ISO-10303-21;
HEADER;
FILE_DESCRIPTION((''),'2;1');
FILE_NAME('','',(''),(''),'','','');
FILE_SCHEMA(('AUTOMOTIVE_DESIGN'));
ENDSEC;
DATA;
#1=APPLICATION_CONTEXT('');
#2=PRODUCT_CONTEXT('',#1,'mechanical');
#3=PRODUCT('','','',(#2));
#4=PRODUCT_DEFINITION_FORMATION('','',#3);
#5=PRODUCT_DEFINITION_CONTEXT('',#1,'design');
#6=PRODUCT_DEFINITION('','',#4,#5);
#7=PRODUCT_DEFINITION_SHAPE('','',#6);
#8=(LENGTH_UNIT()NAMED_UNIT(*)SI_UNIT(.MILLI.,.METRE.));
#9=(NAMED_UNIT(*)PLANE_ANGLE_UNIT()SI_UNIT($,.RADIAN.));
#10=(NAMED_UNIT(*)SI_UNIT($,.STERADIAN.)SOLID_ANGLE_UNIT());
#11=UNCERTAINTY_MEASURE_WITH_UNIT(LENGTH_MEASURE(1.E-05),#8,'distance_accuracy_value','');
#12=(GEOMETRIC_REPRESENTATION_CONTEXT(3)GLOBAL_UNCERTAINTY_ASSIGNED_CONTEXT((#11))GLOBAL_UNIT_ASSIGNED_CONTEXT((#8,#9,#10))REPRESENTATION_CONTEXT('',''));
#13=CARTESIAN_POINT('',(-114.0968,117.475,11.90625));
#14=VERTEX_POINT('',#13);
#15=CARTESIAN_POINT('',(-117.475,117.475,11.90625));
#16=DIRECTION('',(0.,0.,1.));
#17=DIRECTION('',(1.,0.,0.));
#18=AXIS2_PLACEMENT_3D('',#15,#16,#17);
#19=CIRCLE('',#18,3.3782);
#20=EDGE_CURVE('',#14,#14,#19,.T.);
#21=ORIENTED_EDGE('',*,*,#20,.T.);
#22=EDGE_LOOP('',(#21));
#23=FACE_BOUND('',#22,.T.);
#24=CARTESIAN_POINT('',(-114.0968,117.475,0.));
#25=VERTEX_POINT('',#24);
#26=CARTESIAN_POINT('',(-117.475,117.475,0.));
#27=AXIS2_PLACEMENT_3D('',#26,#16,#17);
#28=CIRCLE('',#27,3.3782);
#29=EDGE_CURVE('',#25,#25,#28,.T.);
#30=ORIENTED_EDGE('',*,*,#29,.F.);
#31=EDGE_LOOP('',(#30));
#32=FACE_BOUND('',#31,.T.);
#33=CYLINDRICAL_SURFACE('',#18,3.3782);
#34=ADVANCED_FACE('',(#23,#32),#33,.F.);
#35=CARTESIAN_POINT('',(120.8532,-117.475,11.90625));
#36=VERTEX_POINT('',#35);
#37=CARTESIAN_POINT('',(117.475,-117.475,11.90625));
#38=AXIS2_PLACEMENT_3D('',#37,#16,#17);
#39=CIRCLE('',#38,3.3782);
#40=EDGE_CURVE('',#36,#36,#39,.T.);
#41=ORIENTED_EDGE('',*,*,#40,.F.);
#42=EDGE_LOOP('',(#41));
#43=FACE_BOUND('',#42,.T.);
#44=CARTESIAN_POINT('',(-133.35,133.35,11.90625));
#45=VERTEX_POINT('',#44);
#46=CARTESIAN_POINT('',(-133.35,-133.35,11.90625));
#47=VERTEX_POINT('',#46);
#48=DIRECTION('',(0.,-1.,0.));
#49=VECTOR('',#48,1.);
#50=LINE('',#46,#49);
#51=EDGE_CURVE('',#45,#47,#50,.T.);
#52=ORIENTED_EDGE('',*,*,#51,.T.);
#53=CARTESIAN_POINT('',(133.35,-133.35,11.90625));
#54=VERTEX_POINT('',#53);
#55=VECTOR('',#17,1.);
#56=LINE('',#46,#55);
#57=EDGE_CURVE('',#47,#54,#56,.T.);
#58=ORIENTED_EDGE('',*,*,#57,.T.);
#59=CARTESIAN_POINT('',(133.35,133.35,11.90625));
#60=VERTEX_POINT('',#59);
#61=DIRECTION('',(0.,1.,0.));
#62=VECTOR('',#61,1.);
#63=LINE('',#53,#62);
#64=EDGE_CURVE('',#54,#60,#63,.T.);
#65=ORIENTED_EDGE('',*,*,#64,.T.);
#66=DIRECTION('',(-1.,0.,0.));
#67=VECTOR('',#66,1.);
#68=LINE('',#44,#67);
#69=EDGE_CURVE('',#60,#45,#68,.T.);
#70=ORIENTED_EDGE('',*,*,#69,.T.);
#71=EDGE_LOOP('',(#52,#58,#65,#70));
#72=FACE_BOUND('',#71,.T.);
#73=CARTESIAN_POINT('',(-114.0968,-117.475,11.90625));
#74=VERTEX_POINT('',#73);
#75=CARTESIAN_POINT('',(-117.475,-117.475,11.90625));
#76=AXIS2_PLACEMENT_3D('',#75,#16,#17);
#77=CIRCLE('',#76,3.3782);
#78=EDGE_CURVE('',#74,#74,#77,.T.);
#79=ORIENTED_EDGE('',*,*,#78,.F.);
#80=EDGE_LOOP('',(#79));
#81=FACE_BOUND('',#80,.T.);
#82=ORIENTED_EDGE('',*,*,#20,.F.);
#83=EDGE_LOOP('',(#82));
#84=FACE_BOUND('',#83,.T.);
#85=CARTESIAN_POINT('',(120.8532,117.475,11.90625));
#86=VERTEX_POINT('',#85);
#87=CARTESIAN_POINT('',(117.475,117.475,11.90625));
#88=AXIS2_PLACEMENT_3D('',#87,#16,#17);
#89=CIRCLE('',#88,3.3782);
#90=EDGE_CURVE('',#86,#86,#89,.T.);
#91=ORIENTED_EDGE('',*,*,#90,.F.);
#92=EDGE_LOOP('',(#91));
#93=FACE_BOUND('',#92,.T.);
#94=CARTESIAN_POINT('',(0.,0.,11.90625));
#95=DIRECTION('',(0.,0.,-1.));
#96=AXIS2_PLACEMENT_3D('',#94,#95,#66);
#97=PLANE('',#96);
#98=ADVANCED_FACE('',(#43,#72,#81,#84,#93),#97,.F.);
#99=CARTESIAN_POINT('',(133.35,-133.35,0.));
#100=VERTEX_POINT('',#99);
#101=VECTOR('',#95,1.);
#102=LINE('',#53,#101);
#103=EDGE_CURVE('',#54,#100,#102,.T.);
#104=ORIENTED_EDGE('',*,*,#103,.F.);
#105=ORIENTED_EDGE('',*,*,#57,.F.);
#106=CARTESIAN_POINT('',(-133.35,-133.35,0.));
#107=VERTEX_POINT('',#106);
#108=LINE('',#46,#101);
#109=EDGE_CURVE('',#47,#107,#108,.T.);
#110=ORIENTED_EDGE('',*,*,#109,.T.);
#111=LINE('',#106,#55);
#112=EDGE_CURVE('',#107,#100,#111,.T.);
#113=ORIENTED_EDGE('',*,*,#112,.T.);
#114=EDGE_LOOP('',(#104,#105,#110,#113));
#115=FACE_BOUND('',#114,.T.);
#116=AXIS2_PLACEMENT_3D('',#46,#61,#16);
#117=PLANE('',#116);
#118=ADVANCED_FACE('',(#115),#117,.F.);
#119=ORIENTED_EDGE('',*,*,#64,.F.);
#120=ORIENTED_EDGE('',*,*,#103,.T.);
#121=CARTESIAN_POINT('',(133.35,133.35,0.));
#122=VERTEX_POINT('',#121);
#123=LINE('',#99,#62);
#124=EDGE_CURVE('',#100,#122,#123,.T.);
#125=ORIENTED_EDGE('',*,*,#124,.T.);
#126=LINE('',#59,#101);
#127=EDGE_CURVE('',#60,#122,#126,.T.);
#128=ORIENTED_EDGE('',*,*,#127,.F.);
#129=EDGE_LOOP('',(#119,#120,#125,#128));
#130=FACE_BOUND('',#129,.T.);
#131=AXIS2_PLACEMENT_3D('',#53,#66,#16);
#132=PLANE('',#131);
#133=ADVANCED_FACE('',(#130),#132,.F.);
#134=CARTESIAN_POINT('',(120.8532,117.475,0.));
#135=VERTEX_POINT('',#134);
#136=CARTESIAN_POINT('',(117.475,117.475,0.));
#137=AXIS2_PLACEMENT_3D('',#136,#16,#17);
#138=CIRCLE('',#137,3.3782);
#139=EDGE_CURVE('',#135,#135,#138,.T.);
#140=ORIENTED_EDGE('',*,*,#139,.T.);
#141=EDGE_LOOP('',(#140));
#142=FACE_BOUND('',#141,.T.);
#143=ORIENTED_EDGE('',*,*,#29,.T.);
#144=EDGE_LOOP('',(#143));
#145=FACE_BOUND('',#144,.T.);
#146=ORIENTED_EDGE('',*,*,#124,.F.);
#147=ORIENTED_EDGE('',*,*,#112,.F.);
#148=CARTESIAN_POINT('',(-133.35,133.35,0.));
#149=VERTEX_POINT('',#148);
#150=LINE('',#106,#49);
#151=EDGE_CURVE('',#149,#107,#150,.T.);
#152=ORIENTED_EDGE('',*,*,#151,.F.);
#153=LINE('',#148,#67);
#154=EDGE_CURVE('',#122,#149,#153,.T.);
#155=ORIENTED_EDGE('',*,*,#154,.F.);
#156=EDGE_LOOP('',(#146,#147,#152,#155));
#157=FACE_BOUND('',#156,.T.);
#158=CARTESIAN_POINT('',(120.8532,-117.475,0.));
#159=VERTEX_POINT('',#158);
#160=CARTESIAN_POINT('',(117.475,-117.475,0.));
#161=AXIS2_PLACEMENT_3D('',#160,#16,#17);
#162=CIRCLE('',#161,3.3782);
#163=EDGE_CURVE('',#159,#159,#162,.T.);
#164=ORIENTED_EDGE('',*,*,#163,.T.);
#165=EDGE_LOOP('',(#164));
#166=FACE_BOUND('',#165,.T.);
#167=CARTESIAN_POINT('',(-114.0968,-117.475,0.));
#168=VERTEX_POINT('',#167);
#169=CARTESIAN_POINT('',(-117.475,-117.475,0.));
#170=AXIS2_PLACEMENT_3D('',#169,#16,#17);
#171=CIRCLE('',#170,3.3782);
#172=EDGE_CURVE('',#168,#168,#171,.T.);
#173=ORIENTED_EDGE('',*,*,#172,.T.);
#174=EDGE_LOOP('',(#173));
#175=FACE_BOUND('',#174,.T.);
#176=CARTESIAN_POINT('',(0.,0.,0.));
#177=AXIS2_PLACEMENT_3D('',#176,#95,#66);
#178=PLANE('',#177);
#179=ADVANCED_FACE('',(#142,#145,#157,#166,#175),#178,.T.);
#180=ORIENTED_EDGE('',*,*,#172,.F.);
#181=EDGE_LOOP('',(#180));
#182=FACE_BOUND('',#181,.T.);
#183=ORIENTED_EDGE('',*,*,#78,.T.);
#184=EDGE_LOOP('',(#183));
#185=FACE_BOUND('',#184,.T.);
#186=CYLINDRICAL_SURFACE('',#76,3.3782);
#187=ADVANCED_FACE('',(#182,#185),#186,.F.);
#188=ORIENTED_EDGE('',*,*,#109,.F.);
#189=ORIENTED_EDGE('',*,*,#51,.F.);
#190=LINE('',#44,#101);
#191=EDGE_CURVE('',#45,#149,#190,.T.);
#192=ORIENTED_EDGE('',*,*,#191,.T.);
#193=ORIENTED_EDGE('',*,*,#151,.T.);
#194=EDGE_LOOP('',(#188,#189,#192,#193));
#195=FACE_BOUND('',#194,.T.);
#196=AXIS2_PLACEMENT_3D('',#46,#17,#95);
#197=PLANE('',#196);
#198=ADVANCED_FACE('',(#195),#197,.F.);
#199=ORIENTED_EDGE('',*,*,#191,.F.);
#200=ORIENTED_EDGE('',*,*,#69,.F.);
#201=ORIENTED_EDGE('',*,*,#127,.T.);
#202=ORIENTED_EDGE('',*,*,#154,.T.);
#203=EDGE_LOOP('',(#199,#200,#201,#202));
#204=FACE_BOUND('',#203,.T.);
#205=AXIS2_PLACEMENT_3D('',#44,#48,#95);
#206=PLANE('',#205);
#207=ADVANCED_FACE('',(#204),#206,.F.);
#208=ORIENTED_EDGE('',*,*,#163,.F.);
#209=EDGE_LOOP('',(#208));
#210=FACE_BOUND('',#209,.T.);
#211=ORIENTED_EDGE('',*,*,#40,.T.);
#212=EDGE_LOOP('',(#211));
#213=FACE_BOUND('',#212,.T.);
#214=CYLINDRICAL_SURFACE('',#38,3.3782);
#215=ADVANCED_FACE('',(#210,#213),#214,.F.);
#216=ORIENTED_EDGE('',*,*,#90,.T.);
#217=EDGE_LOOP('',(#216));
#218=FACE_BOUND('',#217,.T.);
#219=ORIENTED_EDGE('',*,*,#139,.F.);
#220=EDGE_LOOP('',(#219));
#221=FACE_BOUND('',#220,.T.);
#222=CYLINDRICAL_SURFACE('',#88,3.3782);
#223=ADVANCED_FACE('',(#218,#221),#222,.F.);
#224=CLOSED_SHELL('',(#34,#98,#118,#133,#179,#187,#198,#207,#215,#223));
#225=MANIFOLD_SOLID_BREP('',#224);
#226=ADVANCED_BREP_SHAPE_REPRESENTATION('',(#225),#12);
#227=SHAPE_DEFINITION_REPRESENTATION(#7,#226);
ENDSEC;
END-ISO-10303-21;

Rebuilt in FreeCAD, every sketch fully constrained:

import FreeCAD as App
import Part
import Sketcher
from FreeCAD import Vector
Q = App.Units.Quantity


def add_polygon(sketch, points):
    """Adds a closed chain of lines whose ends are joined by coincident constraints."""
    first, n = sketch.GeometryCount, len(points)
    for a, b in zip(points, points[1:] + points[:1]):
        sketch.addGeometry(Part.LineSegment(App.Vector(*a, 0), App.Vector(*b, 0)), False)
    for i in range(n):
        sketch.addConstraint(Sketcher.Constraint("Coincident", first + i, 2, first + (i + 1) % n, 1))

doc = App.newDocument("Part")
body = doc.addObject("PartDesign::Body", "Body")

# Sketch on XY plane
sketch1 = body.newObject("Sketcher::SketchObject", "Sketch")
sketch1.AttachmentSupport = (doc.getObject("XY_Plane"), [""])
sketch1.MapMode = "FlatFace"
add_polygon(sketch1, [(-133, 133), (-133, -133), (133, -133), (133, 133)])  # lines 0-3
sketch1.addConstraint([
    Sketcher.Constraint("Vertical", 0),
    Sketcher.Constraint("Horizontal", 1),
    Sketcher.Constraint("Vertical", 2),
    Sketcher.Constraint("Horizontal", 3),
    Sketcher.Constraint("Symmetric", 0, 2, 2, 2, -1, 1),
    Sketcher.Constraint("Equal", 3, 0),
    Sketcher.Constraint("DistanceX", 1, 1, 1, 2, Q("10.5 in")),
])
pad1 = body.newObject("PartDesign::Pad", "Pad")
pad1.Profile = sketch1
pad1.Length = Q("0.46875 in")

# Sketch on XY plane
sketch2 = body.newObject("Sketcher::SketchObject", "Sketch001")
sketch2.AttachmentSupport = (doc.getObject("XY_Plane"), [""])
sketch2.MapMode = "FlatFace"
sketch2.AttachmentOffset = App.Placement(Vector(0, 0, 0.46875 * 25.4), App.Rotation())
sketch2.addGeometry([
    Part.Circle(Vector(-117.5, 117.5, 0), Vector(0, 0, 1), 3.4),
    Part.Circle(Vector(117.5, 117.5, 0), Vector(0, 0, 1), 3.4),
    Part.Circle(Vector(117.5, -117.5, 0), Vector(0, 0, 1), 3.4),
    Part.Circle(Vector(-117.5, -117.5, 0), Vector(0, 0, 1), 3.4),
], False)
sketch2.addConstraint([
    Sketcher.Constraint("Equal", 0, 1),
    Sketcher.Constraint("Equal", 1, 2),
    Sketcher.Constraint("Equal", 2, 3),
    Sketcher.Constraint("Symmetric", 0, 3, 2, 3, -1, 1),
    Sketcher.Constraint("Symmetric", 1, 3, 3, 3, -1, 1),
    Sketcher.Constraint("Symmetric", 0, 3, 1, 3, -2),
    Sketcher.Constraint("Diameter", 0, Q("0.266 in")),
    Sketcher.Constraint("DistanceX", 0, 3, 1, 3, Q("9.25 in")),
    Sketcher.Constraint("DistanceY", 2, 3, 1, 3, Q("9.25 in")),
])
doc.recompute()
hole = body.newObject("PartDesign::Hole", "Hole")
hole.Profile = sketch2
hole.ThreadType = "None"
hole.Diameter = Q("0.266 in")
hole.DepthType = "ThroughAll"

doc.recompute()
